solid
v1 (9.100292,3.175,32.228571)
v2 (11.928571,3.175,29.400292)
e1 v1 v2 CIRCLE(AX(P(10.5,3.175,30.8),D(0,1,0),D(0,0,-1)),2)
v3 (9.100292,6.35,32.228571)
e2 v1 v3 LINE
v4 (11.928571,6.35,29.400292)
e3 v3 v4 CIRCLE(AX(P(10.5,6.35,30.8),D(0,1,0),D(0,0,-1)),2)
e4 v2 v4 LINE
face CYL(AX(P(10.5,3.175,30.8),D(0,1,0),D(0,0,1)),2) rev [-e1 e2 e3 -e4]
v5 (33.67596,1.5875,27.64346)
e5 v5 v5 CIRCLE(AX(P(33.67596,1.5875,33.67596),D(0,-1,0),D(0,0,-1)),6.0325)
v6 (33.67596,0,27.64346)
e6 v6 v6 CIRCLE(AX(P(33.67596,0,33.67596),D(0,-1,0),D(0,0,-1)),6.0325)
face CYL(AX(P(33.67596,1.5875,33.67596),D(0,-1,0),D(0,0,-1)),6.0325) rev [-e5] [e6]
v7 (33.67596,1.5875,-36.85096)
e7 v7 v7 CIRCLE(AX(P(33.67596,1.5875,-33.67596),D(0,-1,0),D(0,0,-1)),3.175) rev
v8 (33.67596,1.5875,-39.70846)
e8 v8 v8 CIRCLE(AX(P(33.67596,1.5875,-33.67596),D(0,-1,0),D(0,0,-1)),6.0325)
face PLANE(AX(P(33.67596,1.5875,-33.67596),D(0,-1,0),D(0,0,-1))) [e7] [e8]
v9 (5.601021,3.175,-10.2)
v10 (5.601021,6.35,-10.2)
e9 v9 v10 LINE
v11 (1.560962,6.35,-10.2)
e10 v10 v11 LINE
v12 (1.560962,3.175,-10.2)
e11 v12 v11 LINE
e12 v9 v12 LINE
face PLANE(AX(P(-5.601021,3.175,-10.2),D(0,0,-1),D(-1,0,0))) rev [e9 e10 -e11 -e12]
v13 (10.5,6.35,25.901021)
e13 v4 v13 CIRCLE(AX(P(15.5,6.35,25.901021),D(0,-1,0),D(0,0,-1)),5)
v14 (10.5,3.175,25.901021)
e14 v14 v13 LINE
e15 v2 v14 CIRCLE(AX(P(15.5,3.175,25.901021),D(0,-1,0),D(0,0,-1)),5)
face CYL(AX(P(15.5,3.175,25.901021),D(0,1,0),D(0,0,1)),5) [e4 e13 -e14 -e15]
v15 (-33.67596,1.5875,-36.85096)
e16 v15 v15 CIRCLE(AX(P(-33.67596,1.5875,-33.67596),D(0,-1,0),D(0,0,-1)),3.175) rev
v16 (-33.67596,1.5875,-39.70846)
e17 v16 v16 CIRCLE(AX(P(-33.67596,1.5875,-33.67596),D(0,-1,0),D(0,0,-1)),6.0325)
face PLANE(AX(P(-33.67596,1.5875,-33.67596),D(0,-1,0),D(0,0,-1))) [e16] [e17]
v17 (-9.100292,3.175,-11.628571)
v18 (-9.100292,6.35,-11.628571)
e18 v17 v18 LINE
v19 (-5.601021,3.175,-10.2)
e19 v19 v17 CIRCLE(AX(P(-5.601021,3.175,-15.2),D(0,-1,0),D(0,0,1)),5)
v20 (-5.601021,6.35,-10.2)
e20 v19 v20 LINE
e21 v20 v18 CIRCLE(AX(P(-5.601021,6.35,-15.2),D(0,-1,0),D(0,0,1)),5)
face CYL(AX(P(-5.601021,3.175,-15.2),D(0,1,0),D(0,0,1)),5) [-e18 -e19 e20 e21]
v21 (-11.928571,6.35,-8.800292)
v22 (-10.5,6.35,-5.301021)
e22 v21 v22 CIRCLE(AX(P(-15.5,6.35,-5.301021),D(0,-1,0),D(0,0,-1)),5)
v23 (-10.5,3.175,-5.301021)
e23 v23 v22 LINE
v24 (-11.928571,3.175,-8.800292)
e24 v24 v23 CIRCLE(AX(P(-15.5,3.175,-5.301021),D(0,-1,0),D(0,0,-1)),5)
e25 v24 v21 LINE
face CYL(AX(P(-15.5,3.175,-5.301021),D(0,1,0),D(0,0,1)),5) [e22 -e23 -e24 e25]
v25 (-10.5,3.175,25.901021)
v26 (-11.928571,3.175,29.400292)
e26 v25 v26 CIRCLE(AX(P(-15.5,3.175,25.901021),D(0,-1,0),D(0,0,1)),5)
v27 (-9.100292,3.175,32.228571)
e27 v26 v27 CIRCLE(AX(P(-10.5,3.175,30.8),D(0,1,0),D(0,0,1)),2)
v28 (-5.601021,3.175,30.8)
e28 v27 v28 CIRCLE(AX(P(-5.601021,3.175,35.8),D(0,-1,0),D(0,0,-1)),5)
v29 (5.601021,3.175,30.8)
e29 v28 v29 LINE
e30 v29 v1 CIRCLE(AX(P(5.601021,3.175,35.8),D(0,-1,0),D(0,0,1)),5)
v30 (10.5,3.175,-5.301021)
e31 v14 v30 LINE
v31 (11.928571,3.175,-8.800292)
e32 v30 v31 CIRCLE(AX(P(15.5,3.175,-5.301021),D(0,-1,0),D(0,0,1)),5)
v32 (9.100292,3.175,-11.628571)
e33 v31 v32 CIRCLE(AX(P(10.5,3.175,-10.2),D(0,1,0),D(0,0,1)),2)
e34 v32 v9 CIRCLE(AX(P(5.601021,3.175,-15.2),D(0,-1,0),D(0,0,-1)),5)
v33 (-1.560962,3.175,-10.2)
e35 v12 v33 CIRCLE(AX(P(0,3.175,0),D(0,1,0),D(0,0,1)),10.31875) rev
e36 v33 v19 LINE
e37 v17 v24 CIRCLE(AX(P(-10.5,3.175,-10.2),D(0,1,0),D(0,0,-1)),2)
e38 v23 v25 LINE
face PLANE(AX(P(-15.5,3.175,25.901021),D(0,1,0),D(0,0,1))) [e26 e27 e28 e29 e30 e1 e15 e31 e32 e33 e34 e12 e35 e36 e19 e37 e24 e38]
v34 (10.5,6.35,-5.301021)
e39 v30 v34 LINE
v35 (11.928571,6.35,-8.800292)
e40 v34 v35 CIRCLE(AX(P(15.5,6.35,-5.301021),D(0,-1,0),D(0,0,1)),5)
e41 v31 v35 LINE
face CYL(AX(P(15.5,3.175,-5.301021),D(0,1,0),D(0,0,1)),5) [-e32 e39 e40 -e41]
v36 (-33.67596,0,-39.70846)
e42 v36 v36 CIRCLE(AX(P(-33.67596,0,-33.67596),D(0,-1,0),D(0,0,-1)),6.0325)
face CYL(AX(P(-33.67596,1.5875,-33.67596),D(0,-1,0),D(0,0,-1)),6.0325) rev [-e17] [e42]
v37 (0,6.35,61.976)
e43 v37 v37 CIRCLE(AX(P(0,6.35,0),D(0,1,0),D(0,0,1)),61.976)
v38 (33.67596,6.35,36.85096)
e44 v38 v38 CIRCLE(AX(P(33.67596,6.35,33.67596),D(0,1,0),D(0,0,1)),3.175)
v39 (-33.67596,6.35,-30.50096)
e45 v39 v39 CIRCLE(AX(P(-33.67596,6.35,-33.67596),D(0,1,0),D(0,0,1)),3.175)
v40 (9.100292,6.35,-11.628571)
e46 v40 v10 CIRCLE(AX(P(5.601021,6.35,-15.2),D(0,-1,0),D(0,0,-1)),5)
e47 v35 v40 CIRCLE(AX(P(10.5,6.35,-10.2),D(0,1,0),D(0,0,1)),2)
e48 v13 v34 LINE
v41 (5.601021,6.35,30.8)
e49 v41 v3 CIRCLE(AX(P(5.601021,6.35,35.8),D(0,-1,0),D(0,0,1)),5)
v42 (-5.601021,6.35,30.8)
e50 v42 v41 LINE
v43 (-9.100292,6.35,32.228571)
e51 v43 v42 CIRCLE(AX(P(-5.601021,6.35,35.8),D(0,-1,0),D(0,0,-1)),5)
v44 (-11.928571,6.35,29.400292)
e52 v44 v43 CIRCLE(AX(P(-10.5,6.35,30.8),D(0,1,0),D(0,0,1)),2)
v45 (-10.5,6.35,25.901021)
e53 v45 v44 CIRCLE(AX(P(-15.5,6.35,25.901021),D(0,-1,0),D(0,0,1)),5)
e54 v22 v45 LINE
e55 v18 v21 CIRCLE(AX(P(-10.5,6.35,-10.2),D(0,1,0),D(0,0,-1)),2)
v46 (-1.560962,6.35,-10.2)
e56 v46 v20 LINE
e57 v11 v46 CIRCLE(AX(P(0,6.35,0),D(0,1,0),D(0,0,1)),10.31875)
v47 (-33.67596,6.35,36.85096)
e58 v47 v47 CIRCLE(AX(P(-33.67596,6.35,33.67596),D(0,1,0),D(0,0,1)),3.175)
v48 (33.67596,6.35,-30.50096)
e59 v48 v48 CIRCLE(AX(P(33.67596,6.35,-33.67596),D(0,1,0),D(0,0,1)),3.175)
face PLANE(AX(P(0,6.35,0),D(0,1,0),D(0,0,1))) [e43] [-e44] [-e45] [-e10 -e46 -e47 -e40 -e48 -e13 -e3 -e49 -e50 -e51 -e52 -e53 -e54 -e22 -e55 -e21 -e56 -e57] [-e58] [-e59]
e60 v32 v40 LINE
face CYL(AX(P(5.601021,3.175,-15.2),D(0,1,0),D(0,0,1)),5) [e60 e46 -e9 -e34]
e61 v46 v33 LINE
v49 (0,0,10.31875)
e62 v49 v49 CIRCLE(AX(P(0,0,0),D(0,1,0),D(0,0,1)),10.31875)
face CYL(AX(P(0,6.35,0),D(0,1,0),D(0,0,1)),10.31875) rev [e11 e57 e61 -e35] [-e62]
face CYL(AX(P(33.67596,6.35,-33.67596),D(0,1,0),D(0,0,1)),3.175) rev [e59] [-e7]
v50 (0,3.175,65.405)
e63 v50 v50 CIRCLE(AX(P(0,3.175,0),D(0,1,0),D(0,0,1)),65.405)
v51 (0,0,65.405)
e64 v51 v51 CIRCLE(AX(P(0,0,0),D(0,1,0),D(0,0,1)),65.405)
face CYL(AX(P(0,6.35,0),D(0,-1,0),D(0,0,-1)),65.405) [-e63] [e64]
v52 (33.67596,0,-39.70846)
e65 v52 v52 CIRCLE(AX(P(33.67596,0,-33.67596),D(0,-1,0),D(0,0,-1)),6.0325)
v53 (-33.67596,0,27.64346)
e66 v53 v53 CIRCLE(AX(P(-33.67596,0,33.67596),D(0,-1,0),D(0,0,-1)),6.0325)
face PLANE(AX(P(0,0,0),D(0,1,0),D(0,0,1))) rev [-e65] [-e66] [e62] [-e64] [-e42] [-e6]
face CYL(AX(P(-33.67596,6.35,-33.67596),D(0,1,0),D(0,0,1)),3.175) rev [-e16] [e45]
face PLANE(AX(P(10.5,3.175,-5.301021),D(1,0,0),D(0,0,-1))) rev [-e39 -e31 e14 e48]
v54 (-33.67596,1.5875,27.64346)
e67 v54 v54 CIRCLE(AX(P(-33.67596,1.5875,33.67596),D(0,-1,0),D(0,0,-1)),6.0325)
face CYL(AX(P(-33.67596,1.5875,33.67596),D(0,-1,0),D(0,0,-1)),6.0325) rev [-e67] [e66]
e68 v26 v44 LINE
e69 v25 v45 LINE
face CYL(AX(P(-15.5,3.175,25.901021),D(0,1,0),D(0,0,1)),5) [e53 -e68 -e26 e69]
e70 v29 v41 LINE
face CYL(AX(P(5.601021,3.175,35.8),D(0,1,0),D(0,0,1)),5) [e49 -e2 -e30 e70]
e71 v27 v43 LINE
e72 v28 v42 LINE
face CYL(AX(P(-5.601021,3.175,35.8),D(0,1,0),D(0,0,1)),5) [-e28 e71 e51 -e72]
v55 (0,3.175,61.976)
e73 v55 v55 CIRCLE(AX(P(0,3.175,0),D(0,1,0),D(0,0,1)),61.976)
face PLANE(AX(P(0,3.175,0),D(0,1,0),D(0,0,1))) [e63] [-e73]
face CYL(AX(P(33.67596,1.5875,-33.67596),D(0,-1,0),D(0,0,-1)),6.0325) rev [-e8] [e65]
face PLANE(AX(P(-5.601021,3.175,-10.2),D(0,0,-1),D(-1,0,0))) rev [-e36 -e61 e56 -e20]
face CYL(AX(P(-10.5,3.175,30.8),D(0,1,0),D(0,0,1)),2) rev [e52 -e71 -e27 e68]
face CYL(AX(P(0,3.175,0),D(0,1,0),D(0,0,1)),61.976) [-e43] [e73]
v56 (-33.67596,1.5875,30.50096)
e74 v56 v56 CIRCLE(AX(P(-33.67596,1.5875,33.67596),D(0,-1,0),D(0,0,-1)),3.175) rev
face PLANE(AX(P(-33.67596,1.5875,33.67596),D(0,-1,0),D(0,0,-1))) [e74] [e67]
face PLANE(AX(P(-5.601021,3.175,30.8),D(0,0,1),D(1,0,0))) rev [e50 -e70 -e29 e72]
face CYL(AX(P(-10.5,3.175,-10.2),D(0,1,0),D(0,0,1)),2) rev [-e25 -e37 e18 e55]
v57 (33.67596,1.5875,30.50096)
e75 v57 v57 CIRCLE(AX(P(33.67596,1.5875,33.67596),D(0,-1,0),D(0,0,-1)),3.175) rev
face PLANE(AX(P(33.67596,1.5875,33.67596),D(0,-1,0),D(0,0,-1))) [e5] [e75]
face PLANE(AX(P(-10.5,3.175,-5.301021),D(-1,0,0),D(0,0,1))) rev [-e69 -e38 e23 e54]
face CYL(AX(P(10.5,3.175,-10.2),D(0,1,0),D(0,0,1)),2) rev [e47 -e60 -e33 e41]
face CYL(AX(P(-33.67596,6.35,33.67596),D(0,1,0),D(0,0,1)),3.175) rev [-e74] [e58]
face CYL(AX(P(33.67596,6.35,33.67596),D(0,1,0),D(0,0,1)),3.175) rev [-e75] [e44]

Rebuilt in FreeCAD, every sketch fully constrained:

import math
import FreeCAD as App
import Part
import Sketcher
Q = App.Units.Quantity

doc = App.newDocument("Part")
params = doc.addObject("Spreadsheet::Sheet", "Params")
for row, (alias, value) in enumerate([
    ("sketch1_diameter", "5.15 in"),
    ("pad1_length", "0.25 in"),
    ("sketch2_diameter", "5.15 in"),
    ("sketch2_diameter2", "4.88 in"),
    ("pocket1_length", "0.125 in"),
    ("sketch3_diameter", "0.25 in"),
    ("hole_diameter", "0.25 in"),
    ("sketch4_diameter", "0.8125 in"),
    ("hole2_diameter", "0.8125 in"),
    ("pocket2_length", "0.125 in"),
    ("sketch6_diameter", "0.475 in"),
    ("pocket3_length", "0.0625 in"),
], start=1):
    params.set(f"A{row}", alias)
    params.set(f"B{row}", "=" + value)
    params.setAlias(f"B{row}", alias)

body = doc.addObject("PartDesign::Body", "Body")

# Sketch on XZ plane
sketch1 = body.newObject("Sketcher::SketchObject", "Sketch")
sketch1.AttachmentSupport = (doc.getObject("XZ_Plane"), [""])
sketch1.MapMode = "FlatFace"
sketch1.addGeometry(Part.Circle(App.Vector(0, 0, 0), App.Vector(0, 0, 1), 65), False)
sketch1.addConstraint([
    Sketcher.Constraint("Coincident", 0, 3, -1, 1),
    Sketcher.Constraint("Diameter", 0, Q("5.15 in")),
])
sketch1.setExpression("Constraints[1]", "Params.sketch1_diameter")
pad1 = body.newObject("PartDesign::Pad", "Pad")
pad1.Profile = sketch1
pad1.setExpression("Length", "Params.pad1_length")
pad1.Reversed = True

# Sketch on XZ plane
sketch2 = body.newObject("Sketcher::SketchObject", "Sketch001")
sketch2.AttachmentSupport = (doc.getObject("XZ_Plane"), [""])
sketch2.MapMode = "FlatFace"
sketch2.AttachmentOffset = App.Placement(App.Vector(0, 0, -0.25 * 25.4), App.Rotation())
sketch2.addGeometry([
    Part.Circle(App.Vector(0, 0, 0), App.Vector(0, 0, 1), 65),
    Part.Circle(App.Vector(0, 0, 0), App.Vector(0, 0, 1), 62),
], False)
sketch2.addConstraint([
    Sketcher.Constraint("Coincident", 0, 3, -1, 1),
    Sketcher.Constraint("Coincident", 1, 3, -1, 1),
    Sketcher.Constraint("Diameter", 0, Q("5.15 in")),
    Sketcher.Constraint("Diameter", 1, Q("4.88 in")),
])
sketch2.setExpression("Constraints[2]", "Params.sketch2_diameter")
sketch2.setExpression("Constraints[3]", "Params.sketch2_diameter2")
pocket1 = body.newObject("PartDesign::Pocket", "Pocket")
pocket1.Profile = sketch2
pocket1.setExpression("Length", "Params.pocket1_length")
pocket1.Reversed = True

# Sketch on XZ plane
sketch3 = body.newObject("Sketcher::SketchObject", "Sketch002")
sketch3.AttachmentSupport = (doc.getObject("XZ_Plane"), [""])
sketch3.MapMode = "FlatFace"
sketch3.AttachmentOffset = App.Placement(App.Vector(0, 0, -0.25 * 25.4), App.Rotation())
sketch3.addGeometry([
    Part.Circle(App.Vector(-33.7, -33.7, 0), App.Vector(0, 0, 1), 3.2),
    Part.Circle(App.Vector(-33.7, 33.7, 0), App.Vector(0, 0, 1), 3.2),
    Part.Circle(App.Vector(33.7, -33.7, 0), App.Vector(0, 0, 1), 3.2),
    Part.Circle(App.Vector(33.7, 33.7, 0), App.Vector(0, 0, 1), 3.2),
], False)
sketch3.addConstraint([
    Sketcher.Constraint("Equal", 0, 1),
    Sketcher.Constraint("Equal", 1, 2),
    Sketcher.Constraint("Equal", 2, 3),
    Sketcher.Constraint("Symmetric", 1, 3, 2, 3, -1, 1),
    Sketcher.Constraint("Symmetric", 0, 3, 3, 3, -1, 1),
    Sketcher.Constraint("Symmetric", 0, 3, 2, 3, -2),
    Sketcher.Constraint("Diameter", 0, Q("0.25 in")),
    Sketcher.Constraint("DistanceX", 0, 3, -1, 1, 33.67596),
    Sketcher.Constraint("DistanceY", 0, 3, -1, 1, 33.67596),
])
sketch3.setExpression("Constraints[6]", "Params.sketch3_diameter")
doc.recompute()
hole = body.newObject("PartDesign::Hole", "Hole")
hole.Profile = sketch3
hole.ThreadType = "None"
hole.setExpression("Diameter", "Params.hole_diameter")
hole.DepthType = "ThroughAll"
hole.Reversed = True

# Sketch on XZ plane
sketch4 = body.newObject("Sketcher::SketchObject", "Sketch003")
sketch4.AttachmentSupport = (doc.getObject("XZ_Plane"), [""])
sketch4.MapMode = "FlatFace"
sketch4.AttachmentOffset = App.Placement(App.Vector(0, 0, -0.25 * 25.4), App.Rotation())
sketch4.addGeometry(Part.Circle(App.Vector(0, 0, 0), App.Vector(0, 0, 1), 10), False)
sketch4.addConstraint([
    Sketcher.Constraint("Coincident", 0, 3, -1, 1),
    Sketcher.Constraint("Diameter", 0, Q("0.8125 in")),
])
sketch4.setExpression("Constraints[1]", "Params.sketch4_diameter")
doc.recompute()
hole2 = body.newObject("PartDesign::Hole", "Hole001")
hole2.Profile = sketch4
hole2.ThreadType = "None"
hole2.setExpression("Diameter", "Params.hole2_diameter")
hole2.DepthType = "ThroughAll"
hole2.Reversed = True

# Sketch on XZ plane
sketch5 = body.newObject("Sketcher::SketchObject", "Sketch004")
sketch5.AttachmentSupport = (doc.getObject("XZ_Plane"), [""])
sketch5.MapMode = "FlatFace"
sketch5.AttachmentOffset = App.Placement(App.Vector(0, 0, -0.25 * 25.4), App.Rotation())
sketch5.addGeometry([
    Part.LineSegment(App.Vector(5.6, -10.2, 0), App.Vector(-5.6, -10.2, 0)),  # 0
    Part.ArcOfCircle(Part.Circle(App.Vector(-5.6, -15.2, 0), App.Vector(0, 0, 1), 5), math.radians(90), math.radians(134)),  # 1
    Part.ArcOfCircle(Part.Circle(App.Vector(-10.5, -10.2, 0), App.Vector(0, 0, 1), 2), math.radians(136), math.radians(314)),  # 2
    Part.ArcOfCircle(Part.Circle(App.Vector(-15.5, -5.3, 0), App.Vector(0, 0, 1), 5), math.radians(-44), math.radians(0)),  # 3
    Part.LineSegment(App.Vector(-10.5, -5.3, 0), App.Vector(-10.5, 25.9, 0)),  # 4
    Part.ArcOfCircle(Part.Circle(App.Vector(-15.5, 25.9, 0), App.Vector(0, 0, 1), 5), math.radians(0), math.radians(44)),  # 5
    Part.ArcOfCircle(Part.Circle(App.Vector(-10.5, 30.8, 0), App.Vector(0, 0, 1), 2), math.radians(46), math.radians(224)),  # 6
    Part.ArcOfCircle(Part.Circle(App.Vector(-5.6, 35.8, 0), App.Vector(0, 0, 1), 5), math.radians(-134), math.radians(-90)),  # 7
    Part.LineSegment(App.Vector(-5.6, 30.8, 0), App.Vector(5.6, 30.8, 0)),  # 8
    Part.ArcOfCircle(Part.Circle(App.Vector(5.6, 35.8, 0), App.Vector(0, 0, 1), 5), math.radians(-90), math.radians(-46)),  # 9
    Part.ArcOfCircle(Part.Circle(App.Vector(10.5, 30.8, 0), App.Vector(0, 0, 1), 2), math.radians(-44), math.radians(134)),  # 10
    Part.ArcOfCircle(Part.Circle(App.Vector(15.5, 25.9, 0), App.Vector(0, 0, 1), 5), math.radians(136), math.radians(180)),  # 11
    Part.LineSegment(App.Vector(10.5, 25.9, 0), App.Vector(10.5, -5.3, 0)),  # 12
    Part.ArcOfCircle(Part.Circle(App.Vector(15.5, -5.3, 0), App.Vector(0, 0, 1), 5), math.radians(180), math.radians(224)),  # 13
    Part.ArcOfCircle(Part.Circle(App.Vector(10.5, -10.2, 0), App.Vector(0, 0, 1), 2), math.radians(-134), math.radians(44)),  # 14
    Part.ArcOfCircle(Part.Circle(App.Vector(5.6, -15.2, 0), App.Vector(0, 0, 1), 5), math.radians(46), math.radians(90)),  # 15
], False)
sketch5.addConstraint([
    Sketcher.Constraint("Tangent", 0, 2, 1, 1),
    Sketcher.Constraint("Tangent", 1, 2, 2, 2),
    Sketcher.Constraint("Tangent", 2, 1, 3, 1),
    Sketcher.Constraint("Tangent", 3, 2, 4, 1),
    Sketcher.Constraint("Tangent", 4, 2, 5, 1),
    Sketcher.Constraint("Tangent", 5, 2, 6, 2),
    Sketcher.Constraint("Tangent", 6, 1, 7, 1),
    Sketcher.Constraint("Tangent", 7, 2, 8, 1),
    Sketcher.Constraint("Tangent", 8, 2, 9, 1),
    Sketcher.Constraint("Tangent", 9, 2, 10, 2),
    Sketcher.Constraint("Tangent", 10, 1, 11, 1),
    Sketcher.Constraint("Tangent", 11, 2, 12, 1),
    Sketcher.Constraint("Tangent", 12, 2, 13, 1),
    Sketcher.Constraint("Tangent", 13, 2, 14, 2),
    Sketcher.Constraint("Tangent", 14, 1, 15, 1),
    Sketcher.Constraint("Tangent", 15, 2, 0, 1),
    Sketcher.Constraint("Horizontal", 0),
    Sketcher.Constraint("Vertical", 4),
    Sketcher.Constraint("Horizontal", 8),
    Sketcher.Constraint("Vertical", 12),
    Sketcher.Constraint("Equal", 1, 3),
    Sketcher.Constraint("Equal", 3, 5),
    Sketcher.Constraint("Equal", 2, 6),
    Sketcher.Constraint("Equal", 5, 7),
    Sketcher.Constraint("Equal", 7, 9),
    Sketcher.Constraint("Equal", 6, 10),
    Sketcher.Constraint("Equal", 9, 11),
    Sketcher.Constraint("Equal", 11, 13),
    Sketcher.Constraint("Equal", 10, 14),
    Sketcher.Constraint("Equal", 13, 15),
    Sketcher.Constraint("Symmetric", 6, 3, 10, 3, -2),
    Sketcher.Constraint("Symmetric", 3, 3, 13, 3, -2),
    Sketcher.Constraint("Horizontal", 2, 3, 14, 3),
    Sketcher.Constraint("Horizontal", 14, 3, 0, 2),
    Sketcher.Constraint("Horizontal", 10, 3, 7, 2),
    Sketcher.Constraint("Vertical", 2, 3, 6, 3),
    Sketcher.Constraint("Vertical", 6, 3, 3, 2),
    Sketcher.Constraint("Radius", 1, 5.0),
    Sketcher.Constraint("Radius", 2, 2.0),
    Sketcher.Constraint("DistanceY", 2, 3, 5, 3, Q("1.4213 in")),
    Sketcher.Constraint("DistanceX", 0, 2, 0, 1, 11.202041),
    Sketcher.Constraint("DistanceY", 1, 3, -1, 1, 15.2),
])
pocket2 = body.newObject("PartDesign::Pocket", "Pocket001")
pocket2.Profile = sketch5
pocket2.setExpression("Length", "Params.pocket2_length")
pocket2.Reversed = True

# Sketch on XZ plane
sketch6 = body.newObject("Sketcher::SketchObject", "Sketch005")
sketch6.AttachmentSupport = (doc.getObject("XZ_Plane"), [""])
sketch6.MapMode = "FlatFace"
sketch6.addGeometry([
    Part.Circle(App.Vector(-34, 34, 0), App.Vector(0, 0, 1), 6),
    Part.Circle(App.Vector(34, 34, 0), App.Vector(0, 0, 1), 6),
    Part.Circle(App.Vector(34, -34, 0), App.Vector(0, 0, 1), 6),
    Part.Circle(App.Vector(-34, -34, 0), App.Vector(0, 0, 1), 6),
], False)
sketch6.addConstraint([
    Sketcher.Constraint("Equal", 0, 1),
    Sketcher.Constraint("Equal", 1, 2),
    Sketcher.Constraint("Equal", 2, 3),
    Sketcher.Constraint("Symmetric", 0, 3, 2, 3, -1, 1),
    Sketcher.Constraint("Symmetric", 1, 3, 3, 3, -1, 1),
    Sketcher.Constraint("Symmetric", 0, 3, 1, 3, -2),
    Sketcher.Constraint("Diameter", 0, Q("0.475 in")),
    Sketcher.Constraint("DistanceX", 0, 3, -1, 1, 33.67596),
    Sketcher.Constraint("DistanceY", -1, 1, 0, 3, 33.67596),
])
sketch6.setExpression("Constraints[6]", "Params.sketch6_diameter")
pocket3 = body.newObject("PartDesign::Pocket", "Pocket002")
pocket3.Profile = sketch6
pocket3.setExpression("Length", "Params.pocket3_length")

doc.recompute()
